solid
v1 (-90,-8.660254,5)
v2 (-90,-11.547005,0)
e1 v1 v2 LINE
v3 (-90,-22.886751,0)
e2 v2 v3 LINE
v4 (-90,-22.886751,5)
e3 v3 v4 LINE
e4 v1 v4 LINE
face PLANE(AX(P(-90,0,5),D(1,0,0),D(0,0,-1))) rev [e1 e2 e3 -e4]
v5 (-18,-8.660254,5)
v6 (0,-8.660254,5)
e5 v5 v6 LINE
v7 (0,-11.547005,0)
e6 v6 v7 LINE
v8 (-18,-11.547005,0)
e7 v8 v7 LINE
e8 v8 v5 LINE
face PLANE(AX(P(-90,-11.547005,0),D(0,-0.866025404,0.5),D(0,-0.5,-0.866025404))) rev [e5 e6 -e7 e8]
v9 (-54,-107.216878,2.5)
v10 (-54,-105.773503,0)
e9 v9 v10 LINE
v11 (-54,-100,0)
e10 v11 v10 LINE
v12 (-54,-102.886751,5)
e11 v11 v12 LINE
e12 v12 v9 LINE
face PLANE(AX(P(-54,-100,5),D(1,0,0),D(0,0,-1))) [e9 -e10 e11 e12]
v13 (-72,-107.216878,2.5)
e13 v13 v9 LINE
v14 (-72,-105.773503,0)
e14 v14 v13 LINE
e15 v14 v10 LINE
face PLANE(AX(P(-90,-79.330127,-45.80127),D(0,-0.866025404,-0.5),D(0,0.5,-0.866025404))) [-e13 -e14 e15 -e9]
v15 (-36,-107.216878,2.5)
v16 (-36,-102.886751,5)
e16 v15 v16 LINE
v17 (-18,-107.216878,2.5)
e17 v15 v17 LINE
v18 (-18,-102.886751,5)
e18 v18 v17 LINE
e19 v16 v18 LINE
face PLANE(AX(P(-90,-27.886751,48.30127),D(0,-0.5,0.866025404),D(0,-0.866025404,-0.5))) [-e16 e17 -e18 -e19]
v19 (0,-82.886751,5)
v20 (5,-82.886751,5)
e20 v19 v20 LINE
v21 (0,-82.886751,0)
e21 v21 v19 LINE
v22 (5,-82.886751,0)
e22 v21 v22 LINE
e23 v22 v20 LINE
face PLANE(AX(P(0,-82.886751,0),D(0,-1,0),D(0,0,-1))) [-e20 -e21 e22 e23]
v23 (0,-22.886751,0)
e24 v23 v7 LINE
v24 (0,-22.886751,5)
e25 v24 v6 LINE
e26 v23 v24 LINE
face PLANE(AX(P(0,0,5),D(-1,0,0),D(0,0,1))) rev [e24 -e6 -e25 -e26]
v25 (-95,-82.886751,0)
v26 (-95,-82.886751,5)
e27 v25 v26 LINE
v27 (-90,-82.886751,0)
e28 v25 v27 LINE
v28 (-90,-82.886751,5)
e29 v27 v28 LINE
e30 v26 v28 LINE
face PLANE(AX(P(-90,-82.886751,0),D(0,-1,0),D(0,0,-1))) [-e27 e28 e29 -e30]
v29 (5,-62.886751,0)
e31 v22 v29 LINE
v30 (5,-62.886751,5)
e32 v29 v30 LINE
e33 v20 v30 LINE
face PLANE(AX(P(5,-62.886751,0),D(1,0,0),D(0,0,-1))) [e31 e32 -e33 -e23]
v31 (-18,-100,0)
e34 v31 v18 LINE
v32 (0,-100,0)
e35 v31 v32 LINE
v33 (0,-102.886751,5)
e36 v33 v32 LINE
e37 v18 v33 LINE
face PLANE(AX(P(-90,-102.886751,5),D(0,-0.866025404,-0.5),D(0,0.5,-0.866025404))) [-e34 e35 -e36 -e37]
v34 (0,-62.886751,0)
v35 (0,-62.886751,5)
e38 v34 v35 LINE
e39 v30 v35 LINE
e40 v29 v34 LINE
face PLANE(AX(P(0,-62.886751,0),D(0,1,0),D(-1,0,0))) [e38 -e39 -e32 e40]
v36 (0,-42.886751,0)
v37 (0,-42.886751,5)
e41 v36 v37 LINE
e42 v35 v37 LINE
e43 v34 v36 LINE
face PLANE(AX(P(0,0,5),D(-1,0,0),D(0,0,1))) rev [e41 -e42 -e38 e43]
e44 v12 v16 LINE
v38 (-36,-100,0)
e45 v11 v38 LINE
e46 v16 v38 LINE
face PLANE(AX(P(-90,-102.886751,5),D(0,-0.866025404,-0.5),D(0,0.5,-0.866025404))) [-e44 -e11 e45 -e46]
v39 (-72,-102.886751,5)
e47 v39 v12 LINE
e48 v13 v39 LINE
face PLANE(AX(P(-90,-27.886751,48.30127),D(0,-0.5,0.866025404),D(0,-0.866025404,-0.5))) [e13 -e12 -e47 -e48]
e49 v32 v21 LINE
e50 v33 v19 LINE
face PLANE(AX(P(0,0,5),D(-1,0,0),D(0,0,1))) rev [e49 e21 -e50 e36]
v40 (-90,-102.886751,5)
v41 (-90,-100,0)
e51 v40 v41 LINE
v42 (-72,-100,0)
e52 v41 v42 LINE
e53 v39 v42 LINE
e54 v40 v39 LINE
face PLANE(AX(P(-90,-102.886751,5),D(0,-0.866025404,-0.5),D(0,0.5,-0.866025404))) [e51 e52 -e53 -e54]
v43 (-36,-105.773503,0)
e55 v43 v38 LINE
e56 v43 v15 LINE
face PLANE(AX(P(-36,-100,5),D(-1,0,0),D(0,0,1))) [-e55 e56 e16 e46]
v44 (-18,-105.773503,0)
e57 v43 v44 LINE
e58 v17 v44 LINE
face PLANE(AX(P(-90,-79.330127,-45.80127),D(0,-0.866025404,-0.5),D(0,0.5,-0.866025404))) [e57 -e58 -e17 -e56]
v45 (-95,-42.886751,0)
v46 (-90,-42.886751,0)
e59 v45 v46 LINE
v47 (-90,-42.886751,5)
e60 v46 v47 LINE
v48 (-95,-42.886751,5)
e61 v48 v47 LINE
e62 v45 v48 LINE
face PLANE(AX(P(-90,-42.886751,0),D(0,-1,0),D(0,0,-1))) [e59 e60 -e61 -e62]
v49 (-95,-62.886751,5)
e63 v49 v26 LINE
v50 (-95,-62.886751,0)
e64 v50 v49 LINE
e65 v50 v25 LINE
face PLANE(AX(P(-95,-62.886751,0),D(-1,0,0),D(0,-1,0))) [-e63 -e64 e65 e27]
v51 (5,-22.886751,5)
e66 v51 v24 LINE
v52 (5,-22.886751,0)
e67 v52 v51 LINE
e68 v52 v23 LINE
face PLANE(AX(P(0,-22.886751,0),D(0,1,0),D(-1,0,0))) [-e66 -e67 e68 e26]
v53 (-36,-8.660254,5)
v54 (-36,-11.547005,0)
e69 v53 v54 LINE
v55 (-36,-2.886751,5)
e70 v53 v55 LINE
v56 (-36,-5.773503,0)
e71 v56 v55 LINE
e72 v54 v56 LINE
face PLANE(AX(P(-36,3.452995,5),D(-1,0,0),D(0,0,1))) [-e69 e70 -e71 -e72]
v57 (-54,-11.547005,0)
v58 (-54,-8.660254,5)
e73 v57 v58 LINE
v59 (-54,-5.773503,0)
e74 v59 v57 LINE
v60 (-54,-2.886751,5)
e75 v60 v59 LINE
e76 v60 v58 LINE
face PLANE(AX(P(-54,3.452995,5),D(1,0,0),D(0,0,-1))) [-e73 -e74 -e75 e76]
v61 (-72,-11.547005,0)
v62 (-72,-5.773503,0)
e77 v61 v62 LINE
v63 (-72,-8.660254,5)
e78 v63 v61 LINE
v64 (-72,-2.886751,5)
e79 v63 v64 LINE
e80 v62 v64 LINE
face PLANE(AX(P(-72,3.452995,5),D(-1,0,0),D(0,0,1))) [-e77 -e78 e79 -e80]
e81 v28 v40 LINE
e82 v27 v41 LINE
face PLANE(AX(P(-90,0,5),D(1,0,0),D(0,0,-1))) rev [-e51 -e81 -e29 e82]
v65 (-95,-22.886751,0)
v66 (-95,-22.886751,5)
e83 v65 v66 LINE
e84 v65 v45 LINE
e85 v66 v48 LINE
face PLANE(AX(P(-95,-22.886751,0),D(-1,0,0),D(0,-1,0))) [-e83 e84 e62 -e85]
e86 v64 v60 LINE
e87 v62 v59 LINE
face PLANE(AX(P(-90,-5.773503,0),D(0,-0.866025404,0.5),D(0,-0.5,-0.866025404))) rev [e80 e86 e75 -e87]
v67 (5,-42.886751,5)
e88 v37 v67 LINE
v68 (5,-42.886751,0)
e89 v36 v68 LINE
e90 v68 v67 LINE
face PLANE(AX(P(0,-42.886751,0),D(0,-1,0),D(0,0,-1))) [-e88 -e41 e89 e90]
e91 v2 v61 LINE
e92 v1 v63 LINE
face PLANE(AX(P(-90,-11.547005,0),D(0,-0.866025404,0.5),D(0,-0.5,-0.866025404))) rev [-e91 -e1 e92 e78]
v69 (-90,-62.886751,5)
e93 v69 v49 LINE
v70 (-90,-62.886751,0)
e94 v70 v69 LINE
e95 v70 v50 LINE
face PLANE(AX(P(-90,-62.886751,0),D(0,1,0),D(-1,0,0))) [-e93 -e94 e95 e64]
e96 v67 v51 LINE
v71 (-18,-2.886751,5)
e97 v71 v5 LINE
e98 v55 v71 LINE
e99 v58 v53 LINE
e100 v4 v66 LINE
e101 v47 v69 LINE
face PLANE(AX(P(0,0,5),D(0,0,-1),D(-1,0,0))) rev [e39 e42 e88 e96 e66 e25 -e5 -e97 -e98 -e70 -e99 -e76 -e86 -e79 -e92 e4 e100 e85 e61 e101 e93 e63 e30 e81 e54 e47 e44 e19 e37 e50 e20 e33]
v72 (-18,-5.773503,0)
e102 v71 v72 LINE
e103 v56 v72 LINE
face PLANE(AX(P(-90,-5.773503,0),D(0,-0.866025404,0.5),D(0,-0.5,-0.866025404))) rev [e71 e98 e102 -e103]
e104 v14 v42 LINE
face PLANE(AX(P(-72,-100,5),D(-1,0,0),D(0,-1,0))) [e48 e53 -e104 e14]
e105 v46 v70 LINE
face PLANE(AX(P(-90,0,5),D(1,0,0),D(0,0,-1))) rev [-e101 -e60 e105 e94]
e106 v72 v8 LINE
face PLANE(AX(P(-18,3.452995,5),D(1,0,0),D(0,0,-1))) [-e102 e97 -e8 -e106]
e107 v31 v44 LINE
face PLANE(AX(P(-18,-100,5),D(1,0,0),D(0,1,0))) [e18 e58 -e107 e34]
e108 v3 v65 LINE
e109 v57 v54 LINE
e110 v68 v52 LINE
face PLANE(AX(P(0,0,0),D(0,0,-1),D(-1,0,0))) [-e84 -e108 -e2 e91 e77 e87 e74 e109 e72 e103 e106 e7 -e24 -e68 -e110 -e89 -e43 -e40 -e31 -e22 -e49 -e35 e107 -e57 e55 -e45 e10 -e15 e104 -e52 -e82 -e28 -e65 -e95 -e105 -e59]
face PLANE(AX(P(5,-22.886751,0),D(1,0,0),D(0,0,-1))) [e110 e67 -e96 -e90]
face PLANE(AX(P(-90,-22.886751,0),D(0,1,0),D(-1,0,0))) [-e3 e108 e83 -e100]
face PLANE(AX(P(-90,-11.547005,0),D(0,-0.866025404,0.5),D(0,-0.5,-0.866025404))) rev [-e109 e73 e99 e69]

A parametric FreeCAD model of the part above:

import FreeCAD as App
import Part
import Sketcher
from FreeCAD import Vector
Q = App.Units.Quantity


def add_polygon(sketch, points):
    """Adds a closed chain of lines whose ends are joined by coincident constraints."""
    first, n = sketch.GeometryCount, len(points)
    for a, b in zip(points, points[1:] + points[:1]):
        sketch.addGeometry(Part.LineSegment(App.Vector(*a, 0), App.Vector(*b, 0)), False)
    for i in range(n):
        sketch.addConstraint(Sketcher.Constraint("Coincident", first + i, 2, first + (i + 1) % n, 1))

doc = App.newDocument("Part")
body = doc.addObject("PartDesign::Body", "Body")

# Sketch on XY plane
sketch1 = doc.addObject("Sketcher::SketchObject", "Sketch")
body.addObject(sketch1)
sketch1.AttachmentSupport = (doc.XY_Plane, [""])
sketch1.MapMode = "FlatFace"
add_polygon(sketch1, [(-90, 0), (-90, -100), (0, -100), (0, 0)])  # lines 0-3
sketch1.addConstraint([
    Sketcher.Constraint("Vertical", 0),
    Sketcher.Constraint("Horizontal", 1),
    Sketcher.Constraint("Vertical", 2),
    Sketcher.Constraint("Horizontal", 3),
    Sketcher.Constraint("Coincident", 2, 2, -1, 1),
    Sketcher.Constraint("DistanceX", 1, 1, 1, 2, Q("90 mm")),
    Sketcher.Constraint("DistanceY", 0, 2, 0, 1, Q("100 mm")),
])
pad1 = doc.addObject("PartDesign::Pad", "Pad")
body.addObject(pad1)
pad1.Profile = sketch1
pad1.Length = 5

# Sketch on YZ plane
sketch2 = doc.addObject("Sketcher::SketchObject", "Sketch001")
body.addObject(sketch2)
sketch2.AttachmentSupport = (doc.YZ_Plane, [""])
sketch2.MapMode = "FlatFace"
add_polygon(sketch2, [(-8.660254, 5), (-11.547005, 0), (0, 0), (0, 5)])  # lines 0-3
sketch2.addConstraint([
    Sketcher.Constraint("Horizontal", 1),
    Sketcher.Constraint("Vertical", 2),
    Sketcher.Constraint("Horizontal", 3),
    Sketcher.Constraint("Coincident", 1, 2, -1, 1),
    Sketcher.Constraint("DistanceY", 2, 1, 2, 2, Q("5 mm")),
    Sketcher.Constraint("Angle", 0, Q("-120 deg")),
    Sketcher.Constraint("DistanceX", 1, 1, 1, 2, Q("11.547005 mm")),
])
pocket1 = doc.addObject("PartDesign::Pocket", "Pocket")
body.addObject(pocket1)
pocket1.Profile = sketch2
pocket1.Type = "ThroughAll"

# Sketch on YZ plane
sketch3 = doc.addObject("Sketcher::SketchObject", "Sketch002")
body.addObject(sketch3)
sketch3.AttachmentSupport = (doc.YZ_Plane, [""])
sketch3.MapMode = "FlatFace"
add_polygon(sketch3, [(-100, 5), (-102.886751, 5), (-100, 0)])  # lines 0-2
sketch3.addConstraint([
    Sketcher.Constraint("Horizontal", 0),
    Sketcher.Constraint("Vertical", 2),
    Sketcher.Constraint("PointOnObject", 1, 2, -1),
    Sketcher.Constraint("DistanceY", 2, 1, 2, 2, Q("5 mm")),
    Sketcher.Constraint("Angle", 1, Q("-60 deg")),
    Sketcher.Constraint("DistanceX", 1, 2, -1, 1, Q("100 mm")),
])
pad2 = doc.addObject("PartDesign::Pad", "Pad001")
body.addObject(pad2)
pad2.Profile = sketch3
pad2.Length = 90
pad2.Reversed = True

# Sketch on XY plane
sketch4 = doc.addObject("Sketcher::SketchObject", "Sketch003")
body.addObject(sketch4)
sketch4.AttachmentSupport = (doc.XY_Plane, [""])
sketch4.MapMode = "FlatFace"
add_polygon(sketch4, [(-18, 3.452995), (-18, -11.547005), (-36, -11.547005), (-36, 3.452995)])  # lines 0-3
add_polygon(sketch4, [(-54, 3.452995), (-54, -11.547005), (-72, -11.547005), (-72, 3.452995)])  # lines 4-7
sketch4.addConstraint([
    Sketcher.Constraint("Vertical", 0),
    Sketcher.Constraint("Horizontal", 1),
    Sketcher.Constraint("Vertical", 2),
    Sketcher.Constraint("Horizontal", 3),
    Sketcher.Constraint("Vertical", 4),
    Sketcher.Constraint("Horizontal", 5),
    Sketcher.Constraint("Vertical", 6),
    Sketcher.Constraint("Horizontal", 7),
    Sketcher.Constraint("Horizontal", 1, 2, 4, 2),
    Sketcher.Constraint("Horizontal", 3, 2, 6, 2),
    Sketcher.Constraint("Equal", 3, 5),
    Sketcher.Constraint("DistanceX", 1, 2, 1, 1, Q("18 mm")),
    Sketcher.Constraint("DistanceY", 0, 2, 0, 1, Q("15 mm")),
    Sketcher.Constraint("DistanceX", 0, 2, -1, 1, Q("18 mm")),
    Sketcher.Constraint("DistanceX", 4, 2, -1, 1, Q("54 mm")),
    Sketcher.Constraint("DistanceY", 0, 2, -1, 1, Q("11.547005 mm")),
])
pad3 = doc.addObject("PartDesign::Pad", "Pad002")
body.addObject(pad3)
pad3.Profile = sketch4
pad3.Length = 5

# Sketch on YZ plane
sketch5 = doc.addObject("Sketcher::SketchObject", "Sketch004")
body.addObject(sketch5)
sketch5.AttachmentSupport = (doc.YZ_Plane, [""])
sketch5.MapMode = "FlatFace"
sketch5.AttachmentOffset = App.Placement(Vector(0, 0, -18), App.Rotation())
add_polygon(sketch5, [(-2.886751, 5), (-5.773503, 0), (3.452995, 0), (3.452995, 5)])  # lines 0-3
sketch5.addConstraint([
    Sketcher.Constraint("Horizontal", 1),
    Sketcher.Constraint("Vertical", 2),
    Sketcher.Constraint("Horizontal", 3),
    Sketcher.Constraint("PointOnObject", 0, 2, -1),
    Sketcher.Constraint("DistanceY", 2, 1, 2, 2, Q("5 mm")),
    Sketcher.Constraint("Angle", 0, Q("-120 deg")),
    Sketcher.Constraint("DistanceX", 1, 1, 1, 2, Q("9.226497 mm")),
    Sketcher.Constraint("DistanceX", 3, 2, -1, 1, Q("2.886751 mm")),
])
pocket2 = doc.addObject("PartDesign::Pocket", "Pocket001")
body.addObject(pocket2)
pocket2.Profile = sketch5
pocket2.Type = "ThroughAll"

# Sketch on XY plane
sketch6 = doc.addObject("Sketcher::SketchObject", "Sketch005")
body.addObject(sketch6)
sketch6.AttachmentSupport = (doc.XY_Plane, [""])
sketch6.MapMode = "FlatFace"
add_polygon(sketch6, [(-18, -100), (-18, -112), (-36, -112), (-36, -100)])  # lines 0-3
add_polygon(sketch6, [(-54, -100), (-54, -112), (-72, -112), (-72, -100)])  # lines 4-7
sketch6.addConstraint([
    Sketcher.Constraint("Vertical", 0),
    Sketcher.Constraint("Horizontal", 1),
    Sketcher.Constraint("Vertical", 2),
    Sketcher.Constraint("Horizontal", 3),
    Sketcher.Constraint("Vertical", 4),
    Sketcher.Constraint("Horizontal", 5),
    Sketcher.Constraint("Vertical", 6),
    Sketcher.Constraint("Horizontal", 7),
    Sketcher.Constraint("Horizontal", 1, 2, 4, 2),
    Sketcher.Constraint("Horizontal", 3, 2, 6, 2),
    Sketcher.Constraint("Equal", 3, 5),
    Sketcher.Constraint("DistanceX", 1, 2, 1, 1, Q("18 mm")),
    Sketcher.Constraint("DistanceY", 0, 2, 0, 1, Q("12 mm")),
    Sketcher.Constraint("DistanceX", 0, 2, -1, 1, Q("18 mm")),
    Sketcher.Constraint("DistanceY", 0, 2, -1, 1, Q("112 mm")),
    Sketcher.Constraint("DistanceX", 4, 2, -1, 1, Q("54 mm")),
])
pad4 = doc.addObject("PartDesign::Pad", "Pad003")
body.addObject(pad4)
pad4.Profile = sketch6
pad4.Length = 5

# Sketch on YZ plane
sketch7 = doc.addObject("Sketcher::SketchObject", "Sketch006")
body.addObject(sketch7)
sketch7.AttachmentSupport = (doc.YZ_Plane, [""])
sketch7.MapMode = "FlatFace"
sketch7.AttachmentOffset = App.Placement(Vector(0, 0, -18), App.Rotation())
add_polygon(sketch7, [(-107.216878, 2.5), (-102.886751, 5), (-112, 5), (-112, 0), (-105.773503, 0)])  # lines 0-4
sketch7.addConstraint([
    Sketcher.Constraint("Horizontal", 1),
    Sketcher.Constraint("Vertical", 2),
    Sketcher.Constraint("Horizontal", 3),
    Sketcher.Constraint("PointOnObject", 2, 2, -1),
    Sketcher.Constraint("Perpendicular", 0, 4),
    Sketcher.Constraint("DistanceY", 2, 2, 2, 1, Q("5 mm")),
    Sketcher.Constraint("Angle", 0, Q("30 deg")),
    Sketcher.Constraint("Distance", 0, Q("5 mm")),
    Sketcher.Constraint("DistanceX", 1, 2, -1, 1, Q("112 mm")),
    Sketcher.Constraint("DistanceX", 1, 2, 1, 1, Q("9.113249 mm")),
])
pocket3 = doc.addObject("PartDesign::Pocket", "Pocket002")
body.addObject(pocket3)
pocket3.Profile = sketch7
pocket3.Type = "ThroughAll"

# Sketch on XY plane
sketch8 = doc.addObject("Sketcher::SketchObject", "Sketch007")
body.addObject(sketch8)
sketch8.AttachmentSupport = (doc.XY_Plane, [""])
sketch8.MapMode = "FlatFace"
sketch8.AttachmentOffset = App.Placement(Vector(0, 0, 5), App.Rotation())
add_polygon(sketch8, [(0, -22.886751), (0, -42.886751), (5, -42.886751), (5, -22.886751)])  # lines 0-3
add_polygon(sketch8, [(0, -62.886751), (0, -82.886751), (5, -82.886751), (5, -62.886751)])  # lines 4-7
add_polygon(sketch8, [(-95, -62.886751), (-95, -82.886751), (-90, -82.886751), (-90, -62.886751)])  # lines 8-11
add_polygon(sketch8, [(-95, -22.886751), (-95, -42.886751), (-90, -42.886751), (-90, -22.886751)])  # lines 12-15
sketch8.addConstraint([
    Sketcher.Constraint("Vertical", 0),
    Sketcher.Constraint("Horizontal", 1),
    Sketcher.Constraint("Vertical", 2),
    Sketcher.Constraint("Horizontal", 3),
    Sketcher.Constraint("Vertical", 4),
    Sketcher.Constraint("Horizontal", 5),
    Sketcher.Constraint("Vertical", 6),
    Sketcher.Constraint("Horizontal", 7),
    Sketcher.Constraint("Vertical", 8),
    Sketcher.Constraint("Horizontal", 9),
    Sketcher.Constraint("Vertical", 10),
    Sketcher.Constraint("Horizontal", 11),
    Sketcher.Constraint("Vertical", 12),
    Sketcher.Constraint("Horizontal", 13),
    Sketcher.Constraint("Vertical", 14),
    Sketcher.Constraint("Horizontal", 15),
    Sketcher.Constraint("PointOnObject", 0, 2, -2),
    Sketcher.Constraint("PointOnObject", 4, 2, -2),
    Sketcher.Constraint("Horizontal", 5, 2, 8, 2),
    Sketcher.Constraint("Horizontal", 7, 2, 10, 2),
    Sketcher.Constraint("Horizontal", 1, 2, 12, 2),
    Sketcher.Constraint("Horizontal", 3, 2, 14, 2),
    Sketcher.Constraint("Vertical", 2, 2, 5, 2),
    Sketcher.Constraint("Vertical", 11, 2, 12, 2),
    Sketcher.Constraint("Vertical", 10, 2, 13, 2),
    Sketcher.Constraint("Equal", 7, 9),
    Sketcher.Constraint("Equal", 2, 4),
    Sketcher.Constraint("DistanceX", 1, 1, 1, 2, Q("5 mm")),
    Sketcher.Constraint("DistanceY", 0, 2, 0, 1, Q("20 mm")),
    Sketcher.Constraint("DistanceX", 8, 2, -1, 1, Q("95 mm")),
    Sketcher.Constraint("DistanceY", 4, 2, 0, 2, Q("40 mm")),
    Sketcher.Constraint("DistanceY", 0, 2, -1, 1, Q("42.886751 mm")),
])
pad5 = doc.addObject("PartDesign::Pad", "Pad004")
body.addObject(pad5)
pad5.Profile = sketch8
pad5.Type = "UpToLast"
pad5.Reversed = True

doc.recompute()
